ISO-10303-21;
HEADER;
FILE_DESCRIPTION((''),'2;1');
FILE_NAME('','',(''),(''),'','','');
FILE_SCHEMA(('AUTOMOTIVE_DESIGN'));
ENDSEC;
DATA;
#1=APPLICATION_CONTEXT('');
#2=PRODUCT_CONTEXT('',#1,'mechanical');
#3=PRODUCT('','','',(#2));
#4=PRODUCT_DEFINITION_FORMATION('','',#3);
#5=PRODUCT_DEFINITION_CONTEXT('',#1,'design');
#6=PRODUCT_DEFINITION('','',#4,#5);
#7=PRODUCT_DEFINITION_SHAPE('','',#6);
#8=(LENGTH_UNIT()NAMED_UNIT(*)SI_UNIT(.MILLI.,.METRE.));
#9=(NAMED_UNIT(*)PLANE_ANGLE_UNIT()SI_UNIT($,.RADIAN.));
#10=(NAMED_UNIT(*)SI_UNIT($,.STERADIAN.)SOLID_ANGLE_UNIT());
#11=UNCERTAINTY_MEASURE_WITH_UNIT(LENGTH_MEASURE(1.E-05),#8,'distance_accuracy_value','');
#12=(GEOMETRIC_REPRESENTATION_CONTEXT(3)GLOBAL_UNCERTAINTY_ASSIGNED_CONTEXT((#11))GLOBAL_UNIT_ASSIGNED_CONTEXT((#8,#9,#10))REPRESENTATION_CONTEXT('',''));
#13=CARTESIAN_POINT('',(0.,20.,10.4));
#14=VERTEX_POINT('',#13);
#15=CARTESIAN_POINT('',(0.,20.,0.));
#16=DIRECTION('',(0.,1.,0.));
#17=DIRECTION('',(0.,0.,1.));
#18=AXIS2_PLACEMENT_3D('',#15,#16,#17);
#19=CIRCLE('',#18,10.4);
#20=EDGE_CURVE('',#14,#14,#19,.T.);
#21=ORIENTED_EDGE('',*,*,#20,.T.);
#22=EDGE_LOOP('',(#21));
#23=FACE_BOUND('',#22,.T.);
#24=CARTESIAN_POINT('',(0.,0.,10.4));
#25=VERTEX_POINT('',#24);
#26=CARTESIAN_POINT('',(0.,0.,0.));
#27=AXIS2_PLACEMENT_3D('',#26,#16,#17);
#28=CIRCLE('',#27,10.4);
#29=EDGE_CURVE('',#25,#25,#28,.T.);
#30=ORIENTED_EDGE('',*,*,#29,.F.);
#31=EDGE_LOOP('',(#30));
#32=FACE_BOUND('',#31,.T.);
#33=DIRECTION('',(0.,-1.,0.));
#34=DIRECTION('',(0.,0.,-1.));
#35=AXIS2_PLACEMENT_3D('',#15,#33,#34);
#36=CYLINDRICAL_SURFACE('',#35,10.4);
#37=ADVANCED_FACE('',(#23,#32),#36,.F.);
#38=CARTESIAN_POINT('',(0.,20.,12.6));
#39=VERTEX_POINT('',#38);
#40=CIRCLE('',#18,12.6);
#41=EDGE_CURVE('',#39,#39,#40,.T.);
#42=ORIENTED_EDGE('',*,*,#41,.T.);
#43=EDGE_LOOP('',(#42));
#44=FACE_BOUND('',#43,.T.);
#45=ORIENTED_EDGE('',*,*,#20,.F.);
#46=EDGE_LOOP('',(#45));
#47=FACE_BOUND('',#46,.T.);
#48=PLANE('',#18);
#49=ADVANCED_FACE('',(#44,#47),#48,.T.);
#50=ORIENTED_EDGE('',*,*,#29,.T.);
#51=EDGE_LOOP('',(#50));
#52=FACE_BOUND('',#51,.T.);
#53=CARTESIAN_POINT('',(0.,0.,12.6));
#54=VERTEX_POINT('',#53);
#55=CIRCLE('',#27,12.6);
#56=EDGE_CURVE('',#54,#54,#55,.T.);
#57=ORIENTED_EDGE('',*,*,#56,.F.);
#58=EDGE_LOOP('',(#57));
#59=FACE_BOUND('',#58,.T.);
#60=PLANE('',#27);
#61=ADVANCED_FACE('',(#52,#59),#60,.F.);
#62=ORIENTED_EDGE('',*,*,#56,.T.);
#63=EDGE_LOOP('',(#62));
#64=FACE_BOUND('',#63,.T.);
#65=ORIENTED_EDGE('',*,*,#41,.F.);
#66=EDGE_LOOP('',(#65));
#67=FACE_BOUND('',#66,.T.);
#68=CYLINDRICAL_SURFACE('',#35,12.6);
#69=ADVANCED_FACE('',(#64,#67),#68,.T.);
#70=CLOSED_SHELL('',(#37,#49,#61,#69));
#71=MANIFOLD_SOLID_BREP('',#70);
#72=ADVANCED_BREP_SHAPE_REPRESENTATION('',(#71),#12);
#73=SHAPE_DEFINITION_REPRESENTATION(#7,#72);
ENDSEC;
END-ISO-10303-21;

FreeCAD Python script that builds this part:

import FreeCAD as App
import Part
import Sketcher
from FreeCAD import Vector
Q = App.Units.Quantity


def faces_at(feature, points):
    """Names of the faces that lie closest to the given points."""
    faces = feature.Shape.Faces
    near = lambda p: min(range(len(faces)), key=lambda i: faces[i].distToShape(Part.Vertex(*p))[0])
    return sorted({f"Face{near(p) + 1}" for p in points})

doc = App.newDocument("Part")
params = doc.addObject("Spreadsheet::Sheet", "Params")
for row, (alias, value) in enumerate([
    ("sketch1_diameter", "25.2 mm"),
    ("pad1_length", "20 mm"),
    ("thickness_wall", "2.2 mm"),
], start=1):
    params.set(f"A{row}", alias)
    params.set(f"B{row}", "=" + value)
    params.setAlias(f"B{row}", alias)

body = doc.addObject("PartDesign::Body", "Body")

# Sketch on XZ plane
sketch1 = body.newObject("Sketcher::SketchObject", "Sketch")
sketch1.AttachmentSupport = (doc.getObject("XZ_Plane"), [""])
sketch1.MapMode = "FlatFace"
sketch1.addGeometry(Part.Circle(Vector(0, 0, 0), Vector(0, 0, 1), 13), False)
sketch1.addConstraint([
    Sketcher.Constraint("Coincident", 0, 3, -1, 1),
    Sketcher.Constraint("Diameter", 0, Q("25.2 mm")),
])
sketch1.setExpression("Constraints[1]", "Params.sketch1_diameter")
pad1 = body.newObject("PartDesign::Pad", "Pad")
pad1.Profile = sketch1
pad1.setExpression("Length", "Params.pad1_length")
pad1.Reversed = True
doc.recompute()

thickness = body.newObject("PartDesign::Thickness", "Thickness")
thickness.Base = (pad1, faces_at(pad1, [(0, 20, 0), (0, 0, 0)]))
thickness.setExpression("Value", "Params.thickness_wall")
thickness.Reversed = True
thickness.Join = "Intersection"

doc.recompute()
